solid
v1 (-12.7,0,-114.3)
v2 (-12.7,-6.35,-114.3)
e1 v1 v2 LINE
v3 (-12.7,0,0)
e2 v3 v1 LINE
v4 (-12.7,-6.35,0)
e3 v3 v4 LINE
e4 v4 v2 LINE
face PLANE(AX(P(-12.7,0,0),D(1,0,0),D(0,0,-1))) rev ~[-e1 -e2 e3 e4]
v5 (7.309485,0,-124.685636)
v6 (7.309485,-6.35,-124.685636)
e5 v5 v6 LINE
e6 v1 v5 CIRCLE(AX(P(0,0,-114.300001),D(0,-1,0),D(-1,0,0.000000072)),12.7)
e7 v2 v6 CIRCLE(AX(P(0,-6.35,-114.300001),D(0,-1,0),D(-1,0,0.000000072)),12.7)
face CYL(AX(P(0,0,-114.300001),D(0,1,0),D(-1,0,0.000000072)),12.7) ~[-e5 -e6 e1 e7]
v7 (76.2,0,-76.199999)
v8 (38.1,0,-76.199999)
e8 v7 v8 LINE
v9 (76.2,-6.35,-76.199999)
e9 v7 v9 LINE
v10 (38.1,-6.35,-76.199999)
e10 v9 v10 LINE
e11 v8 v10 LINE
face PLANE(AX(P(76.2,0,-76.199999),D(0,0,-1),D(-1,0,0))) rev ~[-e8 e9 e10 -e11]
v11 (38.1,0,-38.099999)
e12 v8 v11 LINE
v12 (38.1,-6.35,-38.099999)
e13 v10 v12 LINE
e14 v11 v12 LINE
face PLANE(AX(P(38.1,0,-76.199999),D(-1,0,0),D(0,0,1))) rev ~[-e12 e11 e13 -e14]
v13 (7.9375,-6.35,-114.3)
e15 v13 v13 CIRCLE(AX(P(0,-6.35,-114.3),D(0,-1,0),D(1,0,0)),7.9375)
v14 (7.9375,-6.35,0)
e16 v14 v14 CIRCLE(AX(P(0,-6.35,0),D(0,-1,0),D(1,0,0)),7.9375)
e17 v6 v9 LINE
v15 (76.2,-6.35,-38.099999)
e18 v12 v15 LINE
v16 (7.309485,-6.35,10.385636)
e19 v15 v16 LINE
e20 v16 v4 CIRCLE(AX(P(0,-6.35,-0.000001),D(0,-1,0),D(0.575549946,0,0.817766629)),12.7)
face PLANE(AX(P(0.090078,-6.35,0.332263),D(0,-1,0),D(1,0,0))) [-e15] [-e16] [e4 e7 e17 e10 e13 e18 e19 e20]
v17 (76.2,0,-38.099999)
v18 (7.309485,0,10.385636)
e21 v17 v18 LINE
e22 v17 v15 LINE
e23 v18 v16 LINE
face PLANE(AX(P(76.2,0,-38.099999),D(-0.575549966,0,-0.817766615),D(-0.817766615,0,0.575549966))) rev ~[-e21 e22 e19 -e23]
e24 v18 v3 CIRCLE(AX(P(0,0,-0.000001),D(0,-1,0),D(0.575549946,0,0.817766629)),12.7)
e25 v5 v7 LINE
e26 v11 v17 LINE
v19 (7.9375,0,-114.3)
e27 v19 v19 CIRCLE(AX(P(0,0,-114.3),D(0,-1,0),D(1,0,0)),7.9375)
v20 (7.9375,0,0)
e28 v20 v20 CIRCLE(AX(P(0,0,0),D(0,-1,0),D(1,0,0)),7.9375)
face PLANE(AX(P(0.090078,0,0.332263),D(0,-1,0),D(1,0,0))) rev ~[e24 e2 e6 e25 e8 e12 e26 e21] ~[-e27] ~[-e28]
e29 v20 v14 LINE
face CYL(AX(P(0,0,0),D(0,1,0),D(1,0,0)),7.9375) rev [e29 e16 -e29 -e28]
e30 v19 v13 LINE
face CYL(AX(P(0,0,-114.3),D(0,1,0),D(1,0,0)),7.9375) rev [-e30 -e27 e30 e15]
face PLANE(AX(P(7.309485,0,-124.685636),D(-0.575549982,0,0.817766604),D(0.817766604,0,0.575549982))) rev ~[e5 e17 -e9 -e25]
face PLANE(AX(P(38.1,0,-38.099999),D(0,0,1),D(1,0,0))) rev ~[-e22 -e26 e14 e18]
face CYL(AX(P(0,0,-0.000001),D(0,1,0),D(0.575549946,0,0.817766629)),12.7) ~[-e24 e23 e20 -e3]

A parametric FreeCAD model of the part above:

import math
import FreeCAD as App
import Part
import Sketcher
Q = App.Units.Quantity

doc = App.newDocument("Part")
params = doc.addObject("Spreadsheet::Sheet", "Params")
for row, (alias, value) in enumerate([
    ("sketch1_radius", "0.5 in"),
    ("sketch1_diameter", "0.625 in"),
    ("sketch1_width", "1.5 in"),
    ("sketch1_height", "4.5 in"),
    ("pad1_length", "0.25 in"),
], start=1):
    params.set(f"A{row}", alias)
    params.set(f"B{row}", "=" + value)
    params.setAlias(f"B{row}", alias)

body = doc.addObject("PartDesign::Body", "Body")

sketch1 = doc.addObject("Sketcher::SketchObject", "Sketch")
body.addObject(sketch1)
sketch1.AttachmentSupport = (doc.XZ_Plane, [""])
sketch1.MapMode = "FlatFace"
sketch1.addGeometry(Part.ArcOfCircle(Part.Circle(App.Vector(0, 0, 0), App.Vector(0, 0, 1), 13), math.radians(55), math.radians(180)), False)
sketch1.addGeometry(Part.LineSegment(App.Vector(-13, 0, 0), App.Vector(-13, -114, 0)), False)
sketch1.addGeometry(Part.ArcOfCircle(Part.Circle(App.Vector(0, -114, 0), App.Vector(0, 0, 1), 13), math.radians(180), math.radians(305)), False)
sketch1.addGeometry(Part.LineSegment(App.Vector(7, -125, 0), App.Vector(76, -76, 0)), False)
sketch1.addGeometry(Part.LineSegment(App.Vector(76, -76, 0), App.Vector(38, -76, 0)), False)
sketch1.addGeometry(Part.LineSegment(App.Vector(38, -76, 0), App.Vector(38, -38, 0)), False)
sketch1.addGeometry(Part.LineSegment(App.Vector(38, -38, 0), App.Vector(76, -38, 0)), False)
sketch1.addGeometry(Part.LineSegment(App.Vector(76, -38, 0), App.Vector(7, 10, 0)), False)
sketch1.addGeometry(Part.Circle(App.Vector(0, -114, 0), App.Vector(0, 0, 1), 8), False)
sketch1.addGeometry(Part.Circle(App.Vector(0, 0, 0), App.Vector(0, 0, 1), 8), False)
sketch1.addConstraint(Sketcher.Constraint("Tangent", 0, 2, 1, 1))
sketch1.addConstraint(Sketcher.Constraint("Tangent", 1, 2, 2, 1))
sketch1.addConstraint(Sketcher.Constraint("Tangent", 2, 2, 3, 1))
sketch1.addConstraint(Sketcher.Constraint("Coincident", 3, 2, 4, 1))
sketch1.addConstraint(Sketcher.Constraint("Coincident", 4, 2, 5, 1))
sketch1.addConstraint(Sketcher.Constraint("Coincident", 5, 2, 6, 1))
sketch1.addConstraint(Sketcher.Constraint("Coincident", 6, 2, 7, 1))
sketch1.addConstraint(Sketcher.Constraint("Tangent", 7, 2, 0, 1))
sketch1.addConstraint(Sketcher.Constraint("Vertical", 1))
sketch1.addConstraint(Sketcher.Constraint("Horizontal", 4))
sketch1.addConstraint(Sketcher.Constraint("Vertical", 5))
sketch1.addConstraint(Sketcher.Constraint("Horizontal", 6))
sketch1.addConstraint(Sketcher.Constraint("Coincident", 0, 3, -1, 1))
sketch1.addConstraint(Sketcher.Constraint("Coincident", 9, 3, -1, 1))
sketch1.addConstraint(Sketcher.Constraint("Coincident", 8, 3, 2, 3))
sketch1.addConstraint(Sketcher.Constraint("Equal", 0, 2))
sketch1.addConstraint(Sketcher.Constraint("Equal", 8, 9))
sketch1.addConstraint(Sketcher.Constraint("Vertical", 3, 2, 6, 2))
sketch1.addConstraint(Sketcher.Constraint("Vertical", 2, 2, 7, 2))
sketch1.addConstraint(Sketcher.Constraint("Equal", 6, 5))
sketch1.addConstraint(Sketcher.Constraint("Radius", 0, Q("0.5 in")))
sketch1.addConstraint(Sketcher.Constraint("Diameter", 8, Q("0.625 in")))
sketch1.addConstraint(Sketcher.Constraint("DistanceX", 4, 2, 4, 1, Q("1.5 in")))
sketch1.addConstraint(Sketcher.Constraint("DistanceY", 1, 2, 1, 1, Q("4.5 in")))
sketch1.addConstraint(Sketcher.Constraint("DistanceX", -1, 1, 3, 2, Q("3 in")))
sketch1.setExpression("Constraints[20]", "Params.sketch1_radius")
sketch1.setExpression("Constraints[21]", "Params.sketch1_diameter")
sketch1.setExpression("Constraints[22]", "Params.sketch1_width")
sketch1.setExpression("Constraints[23]", "Params.sketch1_height")
pad1 = doc.addObject("PartDesign::Pad", "Pad")
body.addObject(pad1)
pad1.Profile = sketch1
pad1.setExpression("Length", "Params.pad1_length")

doc.recompute()
